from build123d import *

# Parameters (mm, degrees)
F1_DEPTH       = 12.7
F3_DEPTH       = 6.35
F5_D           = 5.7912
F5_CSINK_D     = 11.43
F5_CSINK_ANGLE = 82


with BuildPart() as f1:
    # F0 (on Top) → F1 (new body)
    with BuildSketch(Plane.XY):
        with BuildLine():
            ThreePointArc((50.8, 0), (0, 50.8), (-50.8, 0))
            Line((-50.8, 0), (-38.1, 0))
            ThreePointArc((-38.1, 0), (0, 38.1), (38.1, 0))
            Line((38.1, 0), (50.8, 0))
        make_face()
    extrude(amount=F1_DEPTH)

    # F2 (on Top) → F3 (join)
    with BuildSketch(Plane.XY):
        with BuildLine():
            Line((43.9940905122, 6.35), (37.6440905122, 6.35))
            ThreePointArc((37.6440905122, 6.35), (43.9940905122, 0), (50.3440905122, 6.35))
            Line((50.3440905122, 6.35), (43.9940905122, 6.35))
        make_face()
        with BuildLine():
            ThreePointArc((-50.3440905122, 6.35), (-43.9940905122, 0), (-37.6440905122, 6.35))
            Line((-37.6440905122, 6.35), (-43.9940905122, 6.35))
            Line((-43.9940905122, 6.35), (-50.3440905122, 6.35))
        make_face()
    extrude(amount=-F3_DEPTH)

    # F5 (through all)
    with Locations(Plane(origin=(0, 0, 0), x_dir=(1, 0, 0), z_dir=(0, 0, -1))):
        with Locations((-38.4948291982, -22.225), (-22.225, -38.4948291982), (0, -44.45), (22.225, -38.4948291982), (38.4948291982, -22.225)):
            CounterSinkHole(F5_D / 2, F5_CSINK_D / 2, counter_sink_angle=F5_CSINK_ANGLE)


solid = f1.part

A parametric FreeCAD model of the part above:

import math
import FreeCAD as App
import Part
import Sketcher
Q = App.Units.Quantity

doc = App.newDocument("Part")
body = doc.addObject("PartDesign::Body", "Body")

# Sketch on XY plane
sketch1 = body.newObject("Sketcher::SketchObject", "Sketch")
sketch1.AttachmentSupport = (doc.getObject("XY_Plane"), [""])
sketch1.MapMode = "FlatFace"
sketch1.addGeometry(Part.ArcOfCircle(Part.Circle(App.Vector(0, 0, 0), App.Vector(0, 0, 1), 51), math.radians(0), math.radians(180)), False)
sketch1.addGeometry(Part.LineSegment(App.Vector(-51, 0, 0), App.Vector(-38, 0, 0)), False)
sketch1.addGeometry(Part.ArcOfCircle(Part.Circle(App.Vector(0, 0, 0), App.Vector(0, 0, 1), 38), math.radians(0), math.radians(180)), False)
sketch1.addGeometry(Part.LineSegment(App.Vector(38, 0, 0), App.Vector(51, 0, 0)), False)
sketch1.addConstraint(Sketcher.Constraint("Coincident", 0, 2, 1, 1))
sketch1.addConstraint(Sketcher.Constraint("Coincident", 1, 2, 2, 2))
sketch1.addConstraint(Sketcher.Constraint("Coincident", 2, 1, 3, 1))
sketch1.addConstraint(Sketcher.Constraint("Coincident", 3, 2, 0, 1))
sketch1.addConstraint(Sketcher.Constraint("Horizontal", 1))
sketch1.addConstraint(Sketcher.Constraint("Horizontal", 3))
sketch1.addConstraint(Sketcher.Constraint("Coincident", 0, 3, -1, 1))
sketch1.addConstraint(Sketcher.Constraint("Coincident", 2, 3, -1, 1))
sketch1.addConstraint(Sketcher.Constraint("PointOnObject", 0, 2, -1))
sketch1.addConstraint(Sketcher.Constraint("PointOnObject", 2, 1, -1))
sketch1.addConstraint(Sketcher.Constraint("Radius", 0, Q("2 in")))
sketch1.addConstraint(Sketcher.Constraint("Radius", 2, Q("1.5 in")))
pad1 = body.newObject("PartDesign::Pad", "Pad")
pad1.Profile = sketch1
pad1.Length = Q("0.5 in")

# Sketch on XY plane
sketch2 = body.newObject("Sketcher::SketchObject", "Sketch001")
sketch2.AttachmentSupport = (doc.getObject("XY_Plane"), [""])
sketch2.MapMode = "FlatFace"
sketch2.addGeometry(Part.ArcOfCircle(Part.Circle(App.Vector(44, 6, 0), App.Vector(0, 0, 1), 6), math.radians(180), math.radians(360)), False)
sketch2.addGeometry(Part.LineSegment(App.Vector(50, 6, 0), App.Vector(38, 6, 0)), False)
sketch2.addGeometry(Part.ArcOfCircle(Part.Circle(App.Vector(-44, 6, 0), App.Vector(0, 0, 1), 6), math.radians(180), math.radians(360)), False)
sketch2.addGeometry(Part.LineSegment(App.Vector(-38, 6, 0), App.Vector(-50, 6, 0)), False)
sketch2.addConstraint(Sketcher.Constraint("Coincident", 0, 1, 1, 2))
sketch2.addConstraint(Sketcher.Constraint("Coincident", 1, 1, 0, 2))
sketch2.addConstraint(Sketcher.Constraint("Coincident", 2, 1, 3, 2))
sketch2.addConstraint(Sketcher.Constraint("Coincident", 3, 1, 2, 2))
sketch2.addConstraint(Sketcher.Constraint("Horizontal", 1))
sketch2.addConstraint(Sketcher.Constraint("Horizontal", 3))
sketch2.addConstraint(Sketcher.Constraint("Equal", 0, 2))
sketch2.addConstraint(Sketcher.Constraint("Symmetric", 0, 3, 2, 3, -2))
sketch2.addConstraint(Sketcher.Constraint("Horizontal", 2, 3, 0, 1))
sketch2.addConstraint(Sketcher.Constraint("Horizontal", 1, 1, 2, 1))
sketch2.addConstraint(Sketcher.Constraint("Radius", 0, Q("0.25 in")))
sketch2.addConstraint(Sketcher.Constraint("DistanceY", -1, 1, 0, 3, Q("0.25 in")))
sketch2.addConstraint(Sketcher.Constraint("DistanceX", -1, 1, 0, 3, 43.994091))
pad2 = body.newObject("PartDesign::Pad", "Pad001")
pad2.Profile = sketch2
pad2.Length = Q("0.25 in")
pad2.Reversed = True

# Sketch on XY plane
sketch3 = body.newObject("Sketcher::SketchObject", "Sketch002")
sketch3.AttachmentSupport = (doc.getObject("XY_Plane"), [""])
sketch3.MapMode = "FlatFace"
sketch3.addGeometry(Part.Circle(App.Vector(-38.5, 22.2, 0), App.Vector(0, 0, 1), 2.9), False)
sketch3.addGeometry(Part.Circle(App.Vector(-22.2, 38.5, 0), App.Vector(0, 0, 1), 2.9), False)
sketch3.addGeometry(Part.Circle(App.Vector(0, 44.5, 0), App.Vector(0, 0, 1), 2.9), False)
sketch3.addGeometry(Part.Circle(App.Vector(22.2, 38.5, 0), App.Vector(0, 0, 1), 2.9), False)
sketch3.addGeometry(Part.Circle(App.Vector(38.5, 22.2, 0), App.Vector(0, 0, 1), 2.9), False)
sketch3.addConstraint(Sketcher.Constraint("Equal", 0, 1))
sketch3.addConstraint(Sketcher.Constraint("Equal", 1, 2))
sketch3.addConstraint(Sketcher.Constraint("Equal", 2, 3))
sketch3.addConstraint(Sketcher.Constraint("Equal", 3, 4))
sketch3.addConstraint(Sketcher.Constraint("Symmetric", 1, 3, 3, 3, -2))
sketch3.addConstraint(Sketcher.Constraint("Symmetric", 0, 3, 4, 3, -2))
sketch3.addConstraint(Sketcher.Constraint("PointOnObject", 2, 3, -2))
sketch3.addConstraint(Sketcher.Constraint("Diameter", 0, Q("0.228 in")))
sketch3.addConstraint(Sketcher.Constraint("DistanceY", -1, 1, 2, 3, Q("1.75 in")))
sketch3.addConstraint(Sketcher.Constraint("DistanceX", 1, 3, 3, 3, Q("1.75 in")))
sketch3.addConstraint(Sketcher.Constraint("DistanceY", -1, 1, 0, 3, Q("0.875 in")))
sketch3.addConstraint(Sketcher.Constraint("DistanceX", 0, 3, -1, 1, 38.494829))
sketch3.addConstraint(Sketcher.Constraint("DistanceY", -1, 1, 1, 3, 38.494829))
doc.recompute()
hole = body.newObject("PartDesign::Hole", "Hole")
hole.Profile = sketch3
hole.ThreadType = "None"
hole.Diameter = Q("0.228 in")
hole.DepthType = "ThroughAll"
hole.HoleCutType = "Countersink"
hole.HoleCutDiameter = Q("0.45 in")
hole.HoleCutCountersinkAngle = 82
hole.Reversed = True

doc.recompute()
